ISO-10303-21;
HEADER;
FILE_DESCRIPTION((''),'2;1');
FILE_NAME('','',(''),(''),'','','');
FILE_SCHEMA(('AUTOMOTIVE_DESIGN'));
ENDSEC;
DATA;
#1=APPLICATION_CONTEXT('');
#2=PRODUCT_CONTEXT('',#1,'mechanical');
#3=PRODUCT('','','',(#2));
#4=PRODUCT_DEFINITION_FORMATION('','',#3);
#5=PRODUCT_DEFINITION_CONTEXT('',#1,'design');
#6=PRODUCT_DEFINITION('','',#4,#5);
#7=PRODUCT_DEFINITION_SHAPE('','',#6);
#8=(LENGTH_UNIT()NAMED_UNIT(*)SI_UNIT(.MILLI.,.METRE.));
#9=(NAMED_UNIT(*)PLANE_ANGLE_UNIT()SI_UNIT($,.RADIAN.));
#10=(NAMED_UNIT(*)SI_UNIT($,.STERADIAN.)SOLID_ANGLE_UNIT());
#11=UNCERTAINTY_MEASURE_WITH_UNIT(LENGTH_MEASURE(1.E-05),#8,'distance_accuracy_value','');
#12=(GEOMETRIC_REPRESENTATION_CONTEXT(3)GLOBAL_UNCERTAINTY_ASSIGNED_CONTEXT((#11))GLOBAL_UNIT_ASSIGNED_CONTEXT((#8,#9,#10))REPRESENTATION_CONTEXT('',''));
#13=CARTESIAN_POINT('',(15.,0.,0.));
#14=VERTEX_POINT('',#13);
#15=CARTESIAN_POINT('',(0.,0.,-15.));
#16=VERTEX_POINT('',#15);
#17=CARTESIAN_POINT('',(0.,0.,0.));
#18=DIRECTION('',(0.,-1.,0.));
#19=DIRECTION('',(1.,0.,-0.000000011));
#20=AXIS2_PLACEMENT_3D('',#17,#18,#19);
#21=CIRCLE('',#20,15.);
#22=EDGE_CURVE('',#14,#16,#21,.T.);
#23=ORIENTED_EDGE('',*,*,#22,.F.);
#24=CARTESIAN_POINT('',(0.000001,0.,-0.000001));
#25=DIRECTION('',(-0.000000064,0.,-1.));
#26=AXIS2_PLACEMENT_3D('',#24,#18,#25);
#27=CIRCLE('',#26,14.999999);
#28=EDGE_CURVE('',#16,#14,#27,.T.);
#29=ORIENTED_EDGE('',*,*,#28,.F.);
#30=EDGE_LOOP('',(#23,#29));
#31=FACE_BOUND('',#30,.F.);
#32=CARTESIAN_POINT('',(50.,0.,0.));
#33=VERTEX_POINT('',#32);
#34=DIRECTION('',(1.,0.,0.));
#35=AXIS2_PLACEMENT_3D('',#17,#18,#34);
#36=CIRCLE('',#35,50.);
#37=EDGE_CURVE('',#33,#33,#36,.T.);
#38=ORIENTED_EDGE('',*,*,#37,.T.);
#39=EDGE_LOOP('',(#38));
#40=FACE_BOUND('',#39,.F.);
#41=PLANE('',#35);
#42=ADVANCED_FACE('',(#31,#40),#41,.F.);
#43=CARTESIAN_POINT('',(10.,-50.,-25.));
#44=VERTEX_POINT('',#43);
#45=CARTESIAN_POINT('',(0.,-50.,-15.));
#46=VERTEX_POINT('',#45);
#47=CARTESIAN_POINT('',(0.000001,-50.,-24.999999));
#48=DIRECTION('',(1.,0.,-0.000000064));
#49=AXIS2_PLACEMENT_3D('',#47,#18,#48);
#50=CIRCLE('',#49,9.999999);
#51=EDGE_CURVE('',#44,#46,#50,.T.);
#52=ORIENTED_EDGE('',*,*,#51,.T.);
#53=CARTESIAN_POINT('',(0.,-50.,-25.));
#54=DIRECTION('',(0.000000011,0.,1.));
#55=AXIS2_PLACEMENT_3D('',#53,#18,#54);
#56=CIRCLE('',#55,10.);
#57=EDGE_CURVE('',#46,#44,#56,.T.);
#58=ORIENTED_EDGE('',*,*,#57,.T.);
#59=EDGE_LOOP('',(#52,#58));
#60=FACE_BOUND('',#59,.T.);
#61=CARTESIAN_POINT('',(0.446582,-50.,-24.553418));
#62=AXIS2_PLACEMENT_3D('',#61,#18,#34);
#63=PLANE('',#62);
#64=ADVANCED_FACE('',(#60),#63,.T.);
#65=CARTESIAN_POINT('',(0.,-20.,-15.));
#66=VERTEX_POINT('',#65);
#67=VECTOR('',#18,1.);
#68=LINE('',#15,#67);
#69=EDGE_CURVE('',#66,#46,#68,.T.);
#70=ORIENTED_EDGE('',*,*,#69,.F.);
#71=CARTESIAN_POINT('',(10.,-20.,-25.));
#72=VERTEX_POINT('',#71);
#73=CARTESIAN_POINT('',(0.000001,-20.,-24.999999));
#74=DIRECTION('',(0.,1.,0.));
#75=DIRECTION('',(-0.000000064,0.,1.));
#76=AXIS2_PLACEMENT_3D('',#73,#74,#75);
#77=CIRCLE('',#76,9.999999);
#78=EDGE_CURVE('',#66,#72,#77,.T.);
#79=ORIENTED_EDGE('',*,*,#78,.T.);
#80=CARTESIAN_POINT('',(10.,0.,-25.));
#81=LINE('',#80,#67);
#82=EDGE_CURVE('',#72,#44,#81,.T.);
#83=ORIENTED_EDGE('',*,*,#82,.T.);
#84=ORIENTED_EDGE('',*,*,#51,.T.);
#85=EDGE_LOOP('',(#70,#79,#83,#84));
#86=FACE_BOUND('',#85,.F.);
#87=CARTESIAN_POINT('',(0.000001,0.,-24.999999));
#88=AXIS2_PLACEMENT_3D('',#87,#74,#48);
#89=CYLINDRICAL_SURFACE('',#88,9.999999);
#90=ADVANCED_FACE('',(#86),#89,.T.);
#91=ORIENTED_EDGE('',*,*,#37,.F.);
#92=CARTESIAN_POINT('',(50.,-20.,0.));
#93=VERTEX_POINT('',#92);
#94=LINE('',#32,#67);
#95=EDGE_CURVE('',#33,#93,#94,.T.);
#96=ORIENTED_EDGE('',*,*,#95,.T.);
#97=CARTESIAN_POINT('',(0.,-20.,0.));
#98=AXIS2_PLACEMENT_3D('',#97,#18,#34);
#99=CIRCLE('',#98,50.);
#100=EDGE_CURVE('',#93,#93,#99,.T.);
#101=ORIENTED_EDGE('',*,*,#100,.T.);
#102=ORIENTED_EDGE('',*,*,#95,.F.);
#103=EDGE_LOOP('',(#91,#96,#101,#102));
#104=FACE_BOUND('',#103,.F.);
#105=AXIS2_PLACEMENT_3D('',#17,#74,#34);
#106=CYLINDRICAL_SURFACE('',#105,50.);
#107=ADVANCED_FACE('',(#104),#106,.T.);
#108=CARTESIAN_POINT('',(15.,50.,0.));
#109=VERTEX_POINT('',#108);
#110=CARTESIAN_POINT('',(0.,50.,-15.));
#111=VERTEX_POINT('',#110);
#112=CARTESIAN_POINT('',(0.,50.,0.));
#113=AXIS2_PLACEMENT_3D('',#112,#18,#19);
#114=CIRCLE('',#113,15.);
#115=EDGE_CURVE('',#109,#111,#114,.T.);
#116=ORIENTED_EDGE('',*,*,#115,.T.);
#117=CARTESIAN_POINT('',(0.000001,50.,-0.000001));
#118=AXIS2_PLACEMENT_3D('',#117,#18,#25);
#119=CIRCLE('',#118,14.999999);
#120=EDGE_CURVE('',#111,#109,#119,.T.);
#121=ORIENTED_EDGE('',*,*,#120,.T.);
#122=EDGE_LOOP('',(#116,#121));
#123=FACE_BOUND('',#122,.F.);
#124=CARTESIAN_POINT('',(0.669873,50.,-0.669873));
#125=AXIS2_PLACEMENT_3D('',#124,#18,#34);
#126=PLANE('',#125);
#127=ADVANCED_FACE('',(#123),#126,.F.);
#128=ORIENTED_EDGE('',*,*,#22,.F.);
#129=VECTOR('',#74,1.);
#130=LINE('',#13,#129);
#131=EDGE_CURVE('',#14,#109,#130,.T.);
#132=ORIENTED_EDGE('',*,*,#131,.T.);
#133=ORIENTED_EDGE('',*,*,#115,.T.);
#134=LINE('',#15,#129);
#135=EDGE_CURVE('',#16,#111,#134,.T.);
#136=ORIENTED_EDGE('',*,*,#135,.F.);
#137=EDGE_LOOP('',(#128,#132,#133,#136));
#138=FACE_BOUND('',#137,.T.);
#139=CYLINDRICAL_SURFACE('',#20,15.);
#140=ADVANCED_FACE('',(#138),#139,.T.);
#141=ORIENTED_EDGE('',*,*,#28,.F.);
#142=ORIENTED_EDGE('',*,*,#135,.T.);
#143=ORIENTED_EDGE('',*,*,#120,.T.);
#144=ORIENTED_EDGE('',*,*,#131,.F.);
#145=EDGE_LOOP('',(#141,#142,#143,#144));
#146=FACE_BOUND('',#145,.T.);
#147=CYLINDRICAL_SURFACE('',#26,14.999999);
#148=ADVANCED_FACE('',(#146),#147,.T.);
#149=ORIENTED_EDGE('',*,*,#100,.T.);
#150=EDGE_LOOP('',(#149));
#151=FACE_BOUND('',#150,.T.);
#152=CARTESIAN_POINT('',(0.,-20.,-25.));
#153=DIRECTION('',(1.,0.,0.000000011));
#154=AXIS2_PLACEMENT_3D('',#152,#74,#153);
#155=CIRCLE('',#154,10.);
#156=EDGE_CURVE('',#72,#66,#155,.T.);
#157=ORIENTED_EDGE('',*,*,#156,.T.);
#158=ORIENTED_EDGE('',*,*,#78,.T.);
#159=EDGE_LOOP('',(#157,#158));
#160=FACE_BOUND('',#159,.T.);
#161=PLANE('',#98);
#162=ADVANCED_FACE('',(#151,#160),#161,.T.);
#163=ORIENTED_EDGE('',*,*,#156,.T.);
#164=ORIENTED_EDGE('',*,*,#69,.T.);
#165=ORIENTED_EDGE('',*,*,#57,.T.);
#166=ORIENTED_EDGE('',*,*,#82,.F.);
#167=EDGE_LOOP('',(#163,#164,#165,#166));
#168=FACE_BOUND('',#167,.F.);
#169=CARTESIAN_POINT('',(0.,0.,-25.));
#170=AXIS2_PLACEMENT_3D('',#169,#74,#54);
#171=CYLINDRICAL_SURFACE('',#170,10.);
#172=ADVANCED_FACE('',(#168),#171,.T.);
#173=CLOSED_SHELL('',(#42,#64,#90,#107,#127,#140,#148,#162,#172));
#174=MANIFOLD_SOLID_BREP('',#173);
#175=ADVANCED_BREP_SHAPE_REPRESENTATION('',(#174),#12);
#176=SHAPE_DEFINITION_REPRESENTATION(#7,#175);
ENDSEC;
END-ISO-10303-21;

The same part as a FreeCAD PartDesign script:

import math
import FreeCAD as App
import Part
import Sketcher

V = App.Vector

doc = App.newDocument("Part")
body = doc.addObject("PartDesign::Body", "Body")

# Sketch on XZ plane
sketch1 = body.newObject("Sketcher::SketchObject", "Sketch")
sketch1.AttachmentSupport = (doc.getObject("XZ_Plane"), [""])
sketch1.MapMode = "FlatFace"
sketch1.addGeometry([
    Part.Circle(V(0, 0, 0), V(0, 0, 1), 50),
    Part.ArcOfCircle(Part.Circle(V(0, -25, 0), V(0, 0, 1), 10), math.radians(90), math.radians(360)),
    Part.ArcOfCircle(Part.Circle(V(0, -25, 0), V(0, 0, 1), 10), math.radians(0), math.radians(90)),
], False)
sketch1.addConstraint([
    Sketcher.Constraint("Tangent", 1, 1, 2, 2),
    Sketcher.Constraint("Coincident", 2, 1, 1, 2),
    Sketcher.Constraint("Coincident", 0, 3, -1, 1),
    Sketcher.Constraint("PointOnObject", 1, 3, -2),
    Sketcher.Constraint("PointOnObject", 1, 1, -2),
    Sketcher.Constraint("Horizontal", 1, 3, 2, 1),
    Sketcher.Constraint("Diameter", 0, 100.0),
    Sketcher.Constraint("Radius", 1, 10.0),
    Sketcher.Constraint("DistanceY", 1, 3, -1, 1, 25.0),
])
pad1 = body.newObject("PartDesign::Pad", "Pad")
pad1.Profile = sketch1
pad1.Length = 20

# Sketch on XZ plane
sketch2 = body.newObject("Sketcher::SketchObject", "Sketch001")
sketch2.AttachmentSupport = (doc.getObject("XZ_Plane"), [""])
sketch2.MapMode = "FlatFace"
sketch2.addGeometry([
    Part.ArcOfCircle(Part.Circle(V(0, -25, 0), V(0, 0, 1), 10), math.radians(90), math.radians(360)),
    Part.ArcOfCircle(Part.Circle(V(0, -25, 0), V(0, 0, 1), 10), math.radians(0), math.radians(90)),
], False)
sketch2.addConstraint([
    Sketcher.Constraint("Tangent", 0, 1, 1, 2),
    Sketcher.Constraint("Coincident", 1, 1, 0, 2),
    Sketcher.Constraint("PointOnObject", 0, 3, -2),
    Sketcher.Constraint("PointOnObject", 0, 1, -2),
    Sketcher.Constraint("Horizontal", 0, 3, 1, 1),
    Sketcher.Constraint("Radius", 0, 10.0),
    Sketcher.Constraint("DistanceY", 0, 3, -1, 1, 25.0),
])
pad2 = body.newObject("PartDesign::Pad", "Pad001")
pad2.Profile = sketch2
pad2.Length = 50

# Sketch on XZ plane
sketch3 = body.newObject("Sketcher::SketchObject", "Sketch002")
sketch3.AttachmentSupport = (doc.getObject("XZ_Plane"), [""])
sketch3.MapMode = "FlatFace"
sketch3.addGeometry([
    Part.ArcOfCircle(Part.Circle(V(0, 0, 0), V(0, 0, 1), 15), math.radians(-90), math.radians(0)),
    Part.ArcOfCircle(Part.Circle(V(0, 0, 0), V(0, 0, 1), 15), math.radians(0), math.radians(270)),
], False)
sketch3.addConstraint([
    Sketcher.Constraint("Tangent", 0, 1, 1, 2),
    Sketcher.Constraint("Coincident", 1, 1, 0, 2),
    Sketcher.Constraint("Coincident", 0, 3, -1, 1),
    Sketcher.Constraint("PointOnObject", 0, 1, -2),
    Sketcher.Constraint("PointOnObject", 1, 1, -1),
    Sketcher.Constraint("Radius", 0, 14.999999),
])
pad3 = body.newObject("PartDesign::Pad", "Pad002")
pad3.Profile = sketch3
pad3.Length = 50
pad3.Reversed = True

doc.recompute()
